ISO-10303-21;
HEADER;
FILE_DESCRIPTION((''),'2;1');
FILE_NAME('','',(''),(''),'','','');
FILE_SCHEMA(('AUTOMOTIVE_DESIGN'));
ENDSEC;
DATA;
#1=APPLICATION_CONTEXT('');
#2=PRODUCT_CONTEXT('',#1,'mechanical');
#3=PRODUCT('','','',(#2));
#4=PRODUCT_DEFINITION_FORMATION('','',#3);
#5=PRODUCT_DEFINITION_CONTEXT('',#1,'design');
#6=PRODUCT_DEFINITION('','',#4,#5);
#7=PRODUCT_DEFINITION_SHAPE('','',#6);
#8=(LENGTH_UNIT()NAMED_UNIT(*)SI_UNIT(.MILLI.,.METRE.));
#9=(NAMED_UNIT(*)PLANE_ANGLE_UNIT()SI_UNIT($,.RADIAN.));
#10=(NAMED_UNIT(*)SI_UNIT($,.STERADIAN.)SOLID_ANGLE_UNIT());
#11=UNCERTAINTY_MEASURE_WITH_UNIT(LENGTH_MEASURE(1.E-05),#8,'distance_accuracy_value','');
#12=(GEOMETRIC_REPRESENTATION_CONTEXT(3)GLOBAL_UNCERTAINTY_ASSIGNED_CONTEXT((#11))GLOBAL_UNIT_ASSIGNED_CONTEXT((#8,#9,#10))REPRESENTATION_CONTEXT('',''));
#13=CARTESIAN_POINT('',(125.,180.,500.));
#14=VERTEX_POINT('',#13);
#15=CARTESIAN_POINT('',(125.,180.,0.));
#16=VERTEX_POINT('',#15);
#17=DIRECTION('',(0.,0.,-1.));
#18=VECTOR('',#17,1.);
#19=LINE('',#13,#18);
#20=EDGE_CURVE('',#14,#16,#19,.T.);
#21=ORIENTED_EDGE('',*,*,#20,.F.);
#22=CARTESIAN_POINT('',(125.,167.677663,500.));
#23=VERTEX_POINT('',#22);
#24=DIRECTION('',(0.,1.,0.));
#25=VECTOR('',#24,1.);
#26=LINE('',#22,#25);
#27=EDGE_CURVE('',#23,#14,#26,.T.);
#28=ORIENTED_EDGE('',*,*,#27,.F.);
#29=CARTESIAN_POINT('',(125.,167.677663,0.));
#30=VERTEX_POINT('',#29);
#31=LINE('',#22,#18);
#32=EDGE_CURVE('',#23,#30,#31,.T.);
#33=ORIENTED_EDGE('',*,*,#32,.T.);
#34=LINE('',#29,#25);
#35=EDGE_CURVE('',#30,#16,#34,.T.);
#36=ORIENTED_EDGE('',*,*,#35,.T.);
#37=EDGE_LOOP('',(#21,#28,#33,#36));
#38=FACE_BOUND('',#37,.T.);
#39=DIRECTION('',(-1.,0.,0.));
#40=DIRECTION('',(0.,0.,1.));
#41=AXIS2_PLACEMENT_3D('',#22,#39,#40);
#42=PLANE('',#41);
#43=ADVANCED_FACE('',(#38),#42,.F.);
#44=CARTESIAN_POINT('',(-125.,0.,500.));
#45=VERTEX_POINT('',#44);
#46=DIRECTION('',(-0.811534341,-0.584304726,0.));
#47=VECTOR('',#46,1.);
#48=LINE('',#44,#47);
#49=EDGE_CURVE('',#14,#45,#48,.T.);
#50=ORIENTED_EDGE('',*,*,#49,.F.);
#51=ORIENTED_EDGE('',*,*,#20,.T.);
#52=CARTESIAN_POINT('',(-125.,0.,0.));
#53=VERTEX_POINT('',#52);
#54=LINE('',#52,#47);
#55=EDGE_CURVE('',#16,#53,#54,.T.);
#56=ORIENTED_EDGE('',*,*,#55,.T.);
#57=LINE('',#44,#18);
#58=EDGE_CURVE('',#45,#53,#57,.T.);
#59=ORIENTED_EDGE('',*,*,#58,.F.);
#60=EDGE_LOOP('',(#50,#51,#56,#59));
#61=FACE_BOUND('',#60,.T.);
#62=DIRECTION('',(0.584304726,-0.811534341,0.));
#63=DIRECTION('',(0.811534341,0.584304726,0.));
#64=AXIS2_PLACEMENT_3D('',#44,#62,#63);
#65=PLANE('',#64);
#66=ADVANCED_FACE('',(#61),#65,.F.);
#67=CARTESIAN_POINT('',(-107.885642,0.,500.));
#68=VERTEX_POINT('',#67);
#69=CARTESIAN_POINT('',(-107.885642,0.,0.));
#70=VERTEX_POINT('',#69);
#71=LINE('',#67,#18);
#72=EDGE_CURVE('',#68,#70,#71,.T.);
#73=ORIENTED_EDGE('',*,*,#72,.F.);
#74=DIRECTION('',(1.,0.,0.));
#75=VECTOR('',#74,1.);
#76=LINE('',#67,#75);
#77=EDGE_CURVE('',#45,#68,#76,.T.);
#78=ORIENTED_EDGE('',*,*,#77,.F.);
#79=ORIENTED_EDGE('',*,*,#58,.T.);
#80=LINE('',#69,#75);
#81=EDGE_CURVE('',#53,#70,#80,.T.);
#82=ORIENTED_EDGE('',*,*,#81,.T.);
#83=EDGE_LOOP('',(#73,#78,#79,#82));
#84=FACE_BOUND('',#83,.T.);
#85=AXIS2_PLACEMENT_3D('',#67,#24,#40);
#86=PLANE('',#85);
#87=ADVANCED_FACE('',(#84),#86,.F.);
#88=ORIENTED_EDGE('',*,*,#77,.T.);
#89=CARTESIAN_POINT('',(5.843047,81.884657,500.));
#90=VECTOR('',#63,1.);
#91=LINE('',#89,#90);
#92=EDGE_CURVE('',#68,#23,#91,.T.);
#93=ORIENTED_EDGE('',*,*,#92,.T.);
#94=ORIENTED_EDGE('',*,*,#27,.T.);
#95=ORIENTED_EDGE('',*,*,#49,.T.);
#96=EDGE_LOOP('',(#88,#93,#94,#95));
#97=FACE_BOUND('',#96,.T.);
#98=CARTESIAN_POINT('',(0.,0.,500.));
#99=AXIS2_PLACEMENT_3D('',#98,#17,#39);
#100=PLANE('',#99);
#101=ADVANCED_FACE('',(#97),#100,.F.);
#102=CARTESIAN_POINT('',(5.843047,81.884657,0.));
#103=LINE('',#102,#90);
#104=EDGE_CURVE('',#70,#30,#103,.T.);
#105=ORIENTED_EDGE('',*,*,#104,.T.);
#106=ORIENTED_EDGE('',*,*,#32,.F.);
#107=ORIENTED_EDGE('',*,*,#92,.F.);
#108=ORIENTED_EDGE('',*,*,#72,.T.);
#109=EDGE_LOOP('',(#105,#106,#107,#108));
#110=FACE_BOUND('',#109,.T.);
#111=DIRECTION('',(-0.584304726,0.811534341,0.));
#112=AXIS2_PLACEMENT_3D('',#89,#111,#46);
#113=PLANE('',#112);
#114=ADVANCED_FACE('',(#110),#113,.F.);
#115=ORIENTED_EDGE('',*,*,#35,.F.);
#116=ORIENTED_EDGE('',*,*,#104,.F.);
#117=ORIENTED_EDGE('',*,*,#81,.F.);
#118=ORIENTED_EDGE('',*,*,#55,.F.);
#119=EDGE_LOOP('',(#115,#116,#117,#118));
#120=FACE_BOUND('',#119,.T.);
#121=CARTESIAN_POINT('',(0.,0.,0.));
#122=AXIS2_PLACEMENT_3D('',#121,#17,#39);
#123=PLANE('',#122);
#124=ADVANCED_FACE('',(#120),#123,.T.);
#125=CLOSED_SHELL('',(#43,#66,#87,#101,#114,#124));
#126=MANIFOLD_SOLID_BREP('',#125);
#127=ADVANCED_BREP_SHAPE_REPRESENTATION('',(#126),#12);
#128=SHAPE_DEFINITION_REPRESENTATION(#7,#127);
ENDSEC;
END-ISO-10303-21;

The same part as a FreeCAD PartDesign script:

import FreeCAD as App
import Part
import Sketcher
Q = App.Units.Quantity


def add_polygon(sketch, points):
    """Adds a closed chain of lines whose ends are joined by coincident constraints."""
    first, n = sketch.GeometryCount, len(points)
    for a, b in zip(points, points[1:] + points[:1]):
        sketch.addGeometry(Part.LineSegment(App.Vector(*a, 0), App.Vector(*b, 0)), False)
    for i in range(n):
        sketch.addConstraint(Sketcher.Constraint("Coincident", first + i, 2, first + (i + 1) % n, 1))

doc = App.newDocument("Part")
body = doc.addObject("PartDesign::Body", "Body")

# Sketch on XY plane
sketch1 = body.newObject("Sketcher::SketchObject", "Sketch")
sketch1.AttachmentSupport = (doc.getObject("XY_Plane"), [""])
sketch1.MapMode = "FlatFace"
add_polygon(sketch1, [(125, 180), (-125, 0), (-108, 0), (6, 82), (125, 168)])  # lines 0-4
sketch1.addConstraint(Sketcher.Constraint("Horizontal", 1))
sketch1.addConstraint(Sketcher.Constraint("Vertical", 4))
sketch1.addConstraint(Sketcher.Constraint("PointOnObject", 0, 2, -1))
sketch1.addConstraint(Sketcher.Constraint("Parallel", 0, 2))
sketch1.addConstraint(Sketcher.Constraint("Parallel", 2, 3))
sketch1.addConstraint(Sketcher.Constraint("DistanceX", 0, 2, -1, 1, Q("125 mm")))
sketch1.addConstraint(Sketcher.Constraint("DistanceX", -1, 1, 3, 2, Q("125 mm")))
sketch1.addConstraint(Sketcher.Constraint("DistanceY", -1, 1, 4, 2, Q("180 mm")))
sketch1.addConstraint(Sketcher.Constraint("Distance", 2, Q("140.140329 mm")))
sketch1.addConstraint(Sketcher.Constraint("Distance", 3, Q("146.829218 mm")))
pad1 = body.newObject("PartDesign::Pad", "Pad")
pad1.Profile = sketch1
pad1.Length = 500

doc.recompute()
